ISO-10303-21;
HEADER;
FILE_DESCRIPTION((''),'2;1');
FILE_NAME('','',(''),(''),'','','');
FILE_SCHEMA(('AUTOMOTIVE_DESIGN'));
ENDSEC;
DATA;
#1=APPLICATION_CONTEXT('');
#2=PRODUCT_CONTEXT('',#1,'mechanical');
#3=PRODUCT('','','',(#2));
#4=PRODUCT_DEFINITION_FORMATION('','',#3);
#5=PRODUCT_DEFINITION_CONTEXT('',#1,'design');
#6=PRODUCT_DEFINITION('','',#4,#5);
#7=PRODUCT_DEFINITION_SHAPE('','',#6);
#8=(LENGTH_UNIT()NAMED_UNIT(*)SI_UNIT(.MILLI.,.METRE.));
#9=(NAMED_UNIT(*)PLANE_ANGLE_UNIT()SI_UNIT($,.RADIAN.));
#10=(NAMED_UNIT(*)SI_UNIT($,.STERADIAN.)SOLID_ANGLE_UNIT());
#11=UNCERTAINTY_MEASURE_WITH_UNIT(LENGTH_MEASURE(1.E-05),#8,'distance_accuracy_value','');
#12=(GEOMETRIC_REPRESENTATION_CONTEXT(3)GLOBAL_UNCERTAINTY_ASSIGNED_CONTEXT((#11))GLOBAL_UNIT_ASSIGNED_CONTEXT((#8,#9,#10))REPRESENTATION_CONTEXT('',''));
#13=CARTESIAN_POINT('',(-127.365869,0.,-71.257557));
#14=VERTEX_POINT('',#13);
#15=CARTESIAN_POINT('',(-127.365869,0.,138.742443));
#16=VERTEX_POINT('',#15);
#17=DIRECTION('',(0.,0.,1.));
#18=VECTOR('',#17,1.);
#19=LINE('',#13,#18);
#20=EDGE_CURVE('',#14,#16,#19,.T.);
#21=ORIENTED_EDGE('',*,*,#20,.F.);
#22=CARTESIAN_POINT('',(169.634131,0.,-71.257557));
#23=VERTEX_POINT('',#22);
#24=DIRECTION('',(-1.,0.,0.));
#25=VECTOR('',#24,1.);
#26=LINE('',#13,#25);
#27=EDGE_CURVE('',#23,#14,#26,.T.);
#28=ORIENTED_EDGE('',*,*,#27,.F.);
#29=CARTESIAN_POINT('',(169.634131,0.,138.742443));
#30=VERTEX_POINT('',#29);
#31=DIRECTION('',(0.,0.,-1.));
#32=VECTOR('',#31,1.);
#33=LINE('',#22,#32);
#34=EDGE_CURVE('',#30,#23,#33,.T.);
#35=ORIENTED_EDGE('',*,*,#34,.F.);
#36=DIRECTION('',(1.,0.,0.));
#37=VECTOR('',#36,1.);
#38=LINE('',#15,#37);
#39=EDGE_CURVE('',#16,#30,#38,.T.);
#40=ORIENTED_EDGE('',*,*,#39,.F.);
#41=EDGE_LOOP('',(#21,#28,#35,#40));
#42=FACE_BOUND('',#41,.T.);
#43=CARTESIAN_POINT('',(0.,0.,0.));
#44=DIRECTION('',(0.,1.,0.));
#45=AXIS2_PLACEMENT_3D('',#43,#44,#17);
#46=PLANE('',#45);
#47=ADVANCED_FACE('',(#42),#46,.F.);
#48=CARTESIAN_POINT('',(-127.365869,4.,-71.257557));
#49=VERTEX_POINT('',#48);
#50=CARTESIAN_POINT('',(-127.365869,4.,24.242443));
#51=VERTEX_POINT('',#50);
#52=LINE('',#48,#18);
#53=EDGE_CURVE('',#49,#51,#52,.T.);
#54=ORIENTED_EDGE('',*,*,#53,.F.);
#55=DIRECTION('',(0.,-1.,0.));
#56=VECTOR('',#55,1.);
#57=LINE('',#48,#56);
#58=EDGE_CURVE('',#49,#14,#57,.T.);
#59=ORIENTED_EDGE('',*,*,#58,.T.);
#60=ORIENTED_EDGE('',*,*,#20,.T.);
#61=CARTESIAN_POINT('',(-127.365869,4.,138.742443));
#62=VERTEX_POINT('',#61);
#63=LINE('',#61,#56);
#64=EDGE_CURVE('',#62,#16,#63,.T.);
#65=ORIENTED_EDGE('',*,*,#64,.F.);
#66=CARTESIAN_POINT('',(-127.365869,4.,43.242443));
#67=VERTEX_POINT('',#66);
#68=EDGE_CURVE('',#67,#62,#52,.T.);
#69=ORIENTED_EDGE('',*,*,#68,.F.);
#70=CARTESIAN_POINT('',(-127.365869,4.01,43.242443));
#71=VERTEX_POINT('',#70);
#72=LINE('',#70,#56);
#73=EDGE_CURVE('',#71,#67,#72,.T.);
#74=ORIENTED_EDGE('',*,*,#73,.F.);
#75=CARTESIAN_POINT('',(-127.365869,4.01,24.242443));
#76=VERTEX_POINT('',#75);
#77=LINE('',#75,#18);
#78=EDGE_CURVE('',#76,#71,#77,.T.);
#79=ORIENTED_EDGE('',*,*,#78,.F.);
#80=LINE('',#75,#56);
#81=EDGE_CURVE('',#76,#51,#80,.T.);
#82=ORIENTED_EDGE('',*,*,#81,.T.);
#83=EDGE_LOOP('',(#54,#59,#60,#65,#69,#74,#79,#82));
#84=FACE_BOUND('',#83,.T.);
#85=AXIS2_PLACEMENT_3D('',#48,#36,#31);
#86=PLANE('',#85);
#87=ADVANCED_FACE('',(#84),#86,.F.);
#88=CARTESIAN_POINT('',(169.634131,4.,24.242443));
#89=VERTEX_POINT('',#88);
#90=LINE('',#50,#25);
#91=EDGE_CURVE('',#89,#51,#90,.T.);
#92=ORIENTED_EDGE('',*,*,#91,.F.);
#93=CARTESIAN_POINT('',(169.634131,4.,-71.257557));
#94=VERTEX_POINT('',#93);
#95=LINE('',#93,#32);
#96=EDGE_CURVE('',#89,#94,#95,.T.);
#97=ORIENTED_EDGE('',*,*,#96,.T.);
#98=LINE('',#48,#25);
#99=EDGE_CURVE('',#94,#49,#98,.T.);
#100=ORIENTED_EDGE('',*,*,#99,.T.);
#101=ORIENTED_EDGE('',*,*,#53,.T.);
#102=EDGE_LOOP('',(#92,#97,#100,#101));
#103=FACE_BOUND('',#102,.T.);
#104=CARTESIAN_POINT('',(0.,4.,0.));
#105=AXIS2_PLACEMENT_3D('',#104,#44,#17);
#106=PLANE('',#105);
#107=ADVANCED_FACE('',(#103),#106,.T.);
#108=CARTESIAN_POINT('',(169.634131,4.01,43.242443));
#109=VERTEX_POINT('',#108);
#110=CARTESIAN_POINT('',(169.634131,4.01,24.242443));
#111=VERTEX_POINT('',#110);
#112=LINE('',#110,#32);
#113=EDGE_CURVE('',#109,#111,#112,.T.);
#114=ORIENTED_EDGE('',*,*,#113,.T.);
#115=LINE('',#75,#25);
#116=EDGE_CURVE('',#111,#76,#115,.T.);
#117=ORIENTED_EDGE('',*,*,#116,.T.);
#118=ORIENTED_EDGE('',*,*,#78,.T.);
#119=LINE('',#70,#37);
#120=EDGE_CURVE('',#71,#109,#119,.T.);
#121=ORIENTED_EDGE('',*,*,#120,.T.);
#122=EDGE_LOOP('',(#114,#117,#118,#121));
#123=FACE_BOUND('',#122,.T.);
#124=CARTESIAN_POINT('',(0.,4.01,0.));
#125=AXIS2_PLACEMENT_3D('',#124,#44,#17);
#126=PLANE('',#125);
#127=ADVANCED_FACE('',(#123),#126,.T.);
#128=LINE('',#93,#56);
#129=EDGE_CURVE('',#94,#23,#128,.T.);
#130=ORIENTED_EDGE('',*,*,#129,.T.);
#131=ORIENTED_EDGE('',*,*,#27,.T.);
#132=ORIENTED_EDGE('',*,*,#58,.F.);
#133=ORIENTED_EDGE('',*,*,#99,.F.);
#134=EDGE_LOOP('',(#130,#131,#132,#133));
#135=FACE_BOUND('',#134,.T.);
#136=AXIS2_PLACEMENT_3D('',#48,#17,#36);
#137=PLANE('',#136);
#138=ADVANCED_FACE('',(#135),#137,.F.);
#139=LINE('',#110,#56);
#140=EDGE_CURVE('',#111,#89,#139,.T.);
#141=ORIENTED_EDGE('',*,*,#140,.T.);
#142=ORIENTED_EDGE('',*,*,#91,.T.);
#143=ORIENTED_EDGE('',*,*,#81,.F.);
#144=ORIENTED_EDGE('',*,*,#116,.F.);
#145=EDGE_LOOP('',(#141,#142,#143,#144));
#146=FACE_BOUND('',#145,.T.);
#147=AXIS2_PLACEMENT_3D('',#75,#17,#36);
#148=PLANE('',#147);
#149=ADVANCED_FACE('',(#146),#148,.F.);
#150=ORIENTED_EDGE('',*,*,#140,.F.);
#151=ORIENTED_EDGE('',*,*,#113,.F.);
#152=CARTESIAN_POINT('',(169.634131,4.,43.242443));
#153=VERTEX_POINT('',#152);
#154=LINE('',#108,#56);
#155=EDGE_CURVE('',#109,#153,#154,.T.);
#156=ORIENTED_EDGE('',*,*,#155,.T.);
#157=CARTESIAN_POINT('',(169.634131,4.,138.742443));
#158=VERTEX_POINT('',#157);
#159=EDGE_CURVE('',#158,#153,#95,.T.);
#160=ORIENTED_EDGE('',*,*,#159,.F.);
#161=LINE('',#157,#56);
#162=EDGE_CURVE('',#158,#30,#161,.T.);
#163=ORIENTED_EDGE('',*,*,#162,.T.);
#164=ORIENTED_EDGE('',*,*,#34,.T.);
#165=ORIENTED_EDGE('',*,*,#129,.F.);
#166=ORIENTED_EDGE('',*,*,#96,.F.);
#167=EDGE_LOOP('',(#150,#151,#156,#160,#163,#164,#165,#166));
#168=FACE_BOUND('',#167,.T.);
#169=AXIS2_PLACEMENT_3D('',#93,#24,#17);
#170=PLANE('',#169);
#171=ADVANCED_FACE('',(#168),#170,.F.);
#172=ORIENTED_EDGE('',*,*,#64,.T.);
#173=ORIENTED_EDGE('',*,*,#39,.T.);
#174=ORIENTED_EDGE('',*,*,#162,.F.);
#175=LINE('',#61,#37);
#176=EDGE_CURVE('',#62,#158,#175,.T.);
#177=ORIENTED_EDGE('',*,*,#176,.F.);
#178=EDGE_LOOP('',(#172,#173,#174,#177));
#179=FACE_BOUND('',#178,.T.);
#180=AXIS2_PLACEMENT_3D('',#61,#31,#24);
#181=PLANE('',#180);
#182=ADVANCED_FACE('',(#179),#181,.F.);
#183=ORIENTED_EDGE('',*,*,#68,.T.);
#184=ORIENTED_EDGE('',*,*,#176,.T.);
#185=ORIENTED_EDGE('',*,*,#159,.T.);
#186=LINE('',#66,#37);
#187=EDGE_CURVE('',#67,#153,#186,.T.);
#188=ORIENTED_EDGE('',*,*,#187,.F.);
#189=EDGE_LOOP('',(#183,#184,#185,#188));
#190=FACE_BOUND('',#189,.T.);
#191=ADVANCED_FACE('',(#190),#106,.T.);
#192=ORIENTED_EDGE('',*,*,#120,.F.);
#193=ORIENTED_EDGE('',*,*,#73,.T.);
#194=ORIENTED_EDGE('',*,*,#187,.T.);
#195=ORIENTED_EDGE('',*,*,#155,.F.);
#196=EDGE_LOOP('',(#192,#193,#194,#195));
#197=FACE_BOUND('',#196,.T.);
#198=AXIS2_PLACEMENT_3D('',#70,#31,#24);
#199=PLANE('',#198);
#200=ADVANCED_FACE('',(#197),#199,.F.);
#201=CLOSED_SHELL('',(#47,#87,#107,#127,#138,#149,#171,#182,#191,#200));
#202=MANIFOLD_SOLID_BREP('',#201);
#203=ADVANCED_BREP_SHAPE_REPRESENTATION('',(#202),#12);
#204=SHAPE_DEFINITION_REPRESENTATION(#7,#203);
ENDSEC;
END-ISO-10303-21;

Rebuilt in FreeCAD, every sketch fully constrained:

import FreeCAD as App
import Part
import Sketcher

V = App.Vector

doc = App.newDocument("Part")
body = doc.addObject("PartDesign::Body", "Body")

sketch1 = body.newObject("Sketcher::SketchObject", "Sketch")
sketch1.AttachmentSupport = (doc.getObject("XZ_Plane"), [""])
sketch1.MapMode = "FlatFace"
sketch1.addGeometry(Part.LineSegment(V(-127, -71, 0), V(-127, 139, 0)), False)
sketch1.addGeometry(Part.LineSegment(V(-127, 139, 0), V(170, 139, 0)), False)
sketch1.addGeometry(Part.LineSegment(V(170, 139, 0), V(170, -71, 0)), False)
sketch1.addGeometry(Part.LineSegment(V(170, -71, 0), V(-127, -71, 0)), False)
sketch1.addConstraint(Sketcher.Constraint("Coincident", 0, 2, 1, 1))
sketch1.addConstraint(Sketcher.Constraint("Coincident", 1, 2, 2, 1))
sketch1.addConstraint(Sketcher.Constraint("Coincident", 2, 2, 3, 1))
sketch1.addConstraint(Sketcher.Constraint("Coincident", 3, 2, 0, 1))
sketch1.addConstraint(Sketcher.Constraint("Vertical", 0))
sketch1.addConstraint(Sketcher.Constraint("Horizontal", 1))
sketch1.addConstraint(Sketcher.Constraint("Vertical", 2))
sketch1.addConstraint(Sketcher.Constraint("Horizontal", 3))
sketch1.addConstraint(Sketcher.Constraint("DistanceX", 1, 1, 1, 2, 297.0))
sketch1.addConstraint(Sketcher.Constraint("DistanceY", 0, 1, 0, 2, 210.0))
sketch1.addConstraint(Sketcher.Constraint("DistanceX", 0, 2, -1, 1, 127.365869))
sketch1.addConstraint(Sketcher.Constraint("DistanceY", -1, 1, 0, 2, 138.742443))
pad1 = body.newObject("PartDesign::Pad", "Pad")
pad1.Profile = sketch1
pad1.Length = 4
pad1.Reversed = True

sketch2 = body.newObject("Sketcher::SketchObject", "Sketch001")
sketch2.AttachmentSupport = (doc.getObject("XZ_Plane"), [""])
sketch2.MapMode = "FlatFace"
sketch2.AttachmentOffset = App.Placement(V(0, 0, -4), App.Rotation())
sketch2.addGeometry(Part.LineSegment(V(-127, 24, 0), V(-127, 43, 0)), False)
sketch2.addGeometry(Part.LineSegment(V(-127, 43, 0), V(170, 43, 0)), False)
sketch2.addGeometry(Part.LineSegment(V(170, 43, 0), V(170, 24, 0)), False)
sketch2.addGeometry(Part.LineSegment(V(170, 24, 0), V(-127, 24, 0)), False)
sketch2.addConstraint(Sketcher.Constraint("Coincident", 0, 2, 1, 1))
sketch2.addConstraint(Sketcher.Constraint("Coincident", 1, 2, 2, 1))
sketch2.addConstraint(Sketcher.Constraint("Coincident", 2, 2, 3, 1))
sketch2.addConstraint(Sketcher.Constraint("Coincident", 3, 2, 0, 1))
sketch2.addConstraint(Sketcher.Constraint("Vertical", 0))
sketch2.addConstraint(Sketcher.Constraint("Horizontal", 1))
sketch2.addConstraint(Sketcher.Constraint("Vertical", 2))
sketch2.addConstraint(Sketcher.Constraint("Horizontal", 3))
sketch2.addConstraint(Sketcher.Constraint("DistanceX", 1, 1, 1, 2, 297.0))
sketch2.addConstraint(Sketcher.Constraint("DistanceY", 0, 1, 0, 2, 19.0))
sketch2.addConstraint(Sketcher.Constraint("DistanceX", 0, 2, -1, 1, 127.365869))
sketch2.addConstraint(Sketcher.Constraint("DistanceY", -1, 1, 0, 2, 43.242443))
pad2 = body.newObject("PartDesign::Pad", "Pad001")
pad2.Profile = sketch2
pad2.Length = 0.01
pad2.Reversed = True

doc.recompute()
